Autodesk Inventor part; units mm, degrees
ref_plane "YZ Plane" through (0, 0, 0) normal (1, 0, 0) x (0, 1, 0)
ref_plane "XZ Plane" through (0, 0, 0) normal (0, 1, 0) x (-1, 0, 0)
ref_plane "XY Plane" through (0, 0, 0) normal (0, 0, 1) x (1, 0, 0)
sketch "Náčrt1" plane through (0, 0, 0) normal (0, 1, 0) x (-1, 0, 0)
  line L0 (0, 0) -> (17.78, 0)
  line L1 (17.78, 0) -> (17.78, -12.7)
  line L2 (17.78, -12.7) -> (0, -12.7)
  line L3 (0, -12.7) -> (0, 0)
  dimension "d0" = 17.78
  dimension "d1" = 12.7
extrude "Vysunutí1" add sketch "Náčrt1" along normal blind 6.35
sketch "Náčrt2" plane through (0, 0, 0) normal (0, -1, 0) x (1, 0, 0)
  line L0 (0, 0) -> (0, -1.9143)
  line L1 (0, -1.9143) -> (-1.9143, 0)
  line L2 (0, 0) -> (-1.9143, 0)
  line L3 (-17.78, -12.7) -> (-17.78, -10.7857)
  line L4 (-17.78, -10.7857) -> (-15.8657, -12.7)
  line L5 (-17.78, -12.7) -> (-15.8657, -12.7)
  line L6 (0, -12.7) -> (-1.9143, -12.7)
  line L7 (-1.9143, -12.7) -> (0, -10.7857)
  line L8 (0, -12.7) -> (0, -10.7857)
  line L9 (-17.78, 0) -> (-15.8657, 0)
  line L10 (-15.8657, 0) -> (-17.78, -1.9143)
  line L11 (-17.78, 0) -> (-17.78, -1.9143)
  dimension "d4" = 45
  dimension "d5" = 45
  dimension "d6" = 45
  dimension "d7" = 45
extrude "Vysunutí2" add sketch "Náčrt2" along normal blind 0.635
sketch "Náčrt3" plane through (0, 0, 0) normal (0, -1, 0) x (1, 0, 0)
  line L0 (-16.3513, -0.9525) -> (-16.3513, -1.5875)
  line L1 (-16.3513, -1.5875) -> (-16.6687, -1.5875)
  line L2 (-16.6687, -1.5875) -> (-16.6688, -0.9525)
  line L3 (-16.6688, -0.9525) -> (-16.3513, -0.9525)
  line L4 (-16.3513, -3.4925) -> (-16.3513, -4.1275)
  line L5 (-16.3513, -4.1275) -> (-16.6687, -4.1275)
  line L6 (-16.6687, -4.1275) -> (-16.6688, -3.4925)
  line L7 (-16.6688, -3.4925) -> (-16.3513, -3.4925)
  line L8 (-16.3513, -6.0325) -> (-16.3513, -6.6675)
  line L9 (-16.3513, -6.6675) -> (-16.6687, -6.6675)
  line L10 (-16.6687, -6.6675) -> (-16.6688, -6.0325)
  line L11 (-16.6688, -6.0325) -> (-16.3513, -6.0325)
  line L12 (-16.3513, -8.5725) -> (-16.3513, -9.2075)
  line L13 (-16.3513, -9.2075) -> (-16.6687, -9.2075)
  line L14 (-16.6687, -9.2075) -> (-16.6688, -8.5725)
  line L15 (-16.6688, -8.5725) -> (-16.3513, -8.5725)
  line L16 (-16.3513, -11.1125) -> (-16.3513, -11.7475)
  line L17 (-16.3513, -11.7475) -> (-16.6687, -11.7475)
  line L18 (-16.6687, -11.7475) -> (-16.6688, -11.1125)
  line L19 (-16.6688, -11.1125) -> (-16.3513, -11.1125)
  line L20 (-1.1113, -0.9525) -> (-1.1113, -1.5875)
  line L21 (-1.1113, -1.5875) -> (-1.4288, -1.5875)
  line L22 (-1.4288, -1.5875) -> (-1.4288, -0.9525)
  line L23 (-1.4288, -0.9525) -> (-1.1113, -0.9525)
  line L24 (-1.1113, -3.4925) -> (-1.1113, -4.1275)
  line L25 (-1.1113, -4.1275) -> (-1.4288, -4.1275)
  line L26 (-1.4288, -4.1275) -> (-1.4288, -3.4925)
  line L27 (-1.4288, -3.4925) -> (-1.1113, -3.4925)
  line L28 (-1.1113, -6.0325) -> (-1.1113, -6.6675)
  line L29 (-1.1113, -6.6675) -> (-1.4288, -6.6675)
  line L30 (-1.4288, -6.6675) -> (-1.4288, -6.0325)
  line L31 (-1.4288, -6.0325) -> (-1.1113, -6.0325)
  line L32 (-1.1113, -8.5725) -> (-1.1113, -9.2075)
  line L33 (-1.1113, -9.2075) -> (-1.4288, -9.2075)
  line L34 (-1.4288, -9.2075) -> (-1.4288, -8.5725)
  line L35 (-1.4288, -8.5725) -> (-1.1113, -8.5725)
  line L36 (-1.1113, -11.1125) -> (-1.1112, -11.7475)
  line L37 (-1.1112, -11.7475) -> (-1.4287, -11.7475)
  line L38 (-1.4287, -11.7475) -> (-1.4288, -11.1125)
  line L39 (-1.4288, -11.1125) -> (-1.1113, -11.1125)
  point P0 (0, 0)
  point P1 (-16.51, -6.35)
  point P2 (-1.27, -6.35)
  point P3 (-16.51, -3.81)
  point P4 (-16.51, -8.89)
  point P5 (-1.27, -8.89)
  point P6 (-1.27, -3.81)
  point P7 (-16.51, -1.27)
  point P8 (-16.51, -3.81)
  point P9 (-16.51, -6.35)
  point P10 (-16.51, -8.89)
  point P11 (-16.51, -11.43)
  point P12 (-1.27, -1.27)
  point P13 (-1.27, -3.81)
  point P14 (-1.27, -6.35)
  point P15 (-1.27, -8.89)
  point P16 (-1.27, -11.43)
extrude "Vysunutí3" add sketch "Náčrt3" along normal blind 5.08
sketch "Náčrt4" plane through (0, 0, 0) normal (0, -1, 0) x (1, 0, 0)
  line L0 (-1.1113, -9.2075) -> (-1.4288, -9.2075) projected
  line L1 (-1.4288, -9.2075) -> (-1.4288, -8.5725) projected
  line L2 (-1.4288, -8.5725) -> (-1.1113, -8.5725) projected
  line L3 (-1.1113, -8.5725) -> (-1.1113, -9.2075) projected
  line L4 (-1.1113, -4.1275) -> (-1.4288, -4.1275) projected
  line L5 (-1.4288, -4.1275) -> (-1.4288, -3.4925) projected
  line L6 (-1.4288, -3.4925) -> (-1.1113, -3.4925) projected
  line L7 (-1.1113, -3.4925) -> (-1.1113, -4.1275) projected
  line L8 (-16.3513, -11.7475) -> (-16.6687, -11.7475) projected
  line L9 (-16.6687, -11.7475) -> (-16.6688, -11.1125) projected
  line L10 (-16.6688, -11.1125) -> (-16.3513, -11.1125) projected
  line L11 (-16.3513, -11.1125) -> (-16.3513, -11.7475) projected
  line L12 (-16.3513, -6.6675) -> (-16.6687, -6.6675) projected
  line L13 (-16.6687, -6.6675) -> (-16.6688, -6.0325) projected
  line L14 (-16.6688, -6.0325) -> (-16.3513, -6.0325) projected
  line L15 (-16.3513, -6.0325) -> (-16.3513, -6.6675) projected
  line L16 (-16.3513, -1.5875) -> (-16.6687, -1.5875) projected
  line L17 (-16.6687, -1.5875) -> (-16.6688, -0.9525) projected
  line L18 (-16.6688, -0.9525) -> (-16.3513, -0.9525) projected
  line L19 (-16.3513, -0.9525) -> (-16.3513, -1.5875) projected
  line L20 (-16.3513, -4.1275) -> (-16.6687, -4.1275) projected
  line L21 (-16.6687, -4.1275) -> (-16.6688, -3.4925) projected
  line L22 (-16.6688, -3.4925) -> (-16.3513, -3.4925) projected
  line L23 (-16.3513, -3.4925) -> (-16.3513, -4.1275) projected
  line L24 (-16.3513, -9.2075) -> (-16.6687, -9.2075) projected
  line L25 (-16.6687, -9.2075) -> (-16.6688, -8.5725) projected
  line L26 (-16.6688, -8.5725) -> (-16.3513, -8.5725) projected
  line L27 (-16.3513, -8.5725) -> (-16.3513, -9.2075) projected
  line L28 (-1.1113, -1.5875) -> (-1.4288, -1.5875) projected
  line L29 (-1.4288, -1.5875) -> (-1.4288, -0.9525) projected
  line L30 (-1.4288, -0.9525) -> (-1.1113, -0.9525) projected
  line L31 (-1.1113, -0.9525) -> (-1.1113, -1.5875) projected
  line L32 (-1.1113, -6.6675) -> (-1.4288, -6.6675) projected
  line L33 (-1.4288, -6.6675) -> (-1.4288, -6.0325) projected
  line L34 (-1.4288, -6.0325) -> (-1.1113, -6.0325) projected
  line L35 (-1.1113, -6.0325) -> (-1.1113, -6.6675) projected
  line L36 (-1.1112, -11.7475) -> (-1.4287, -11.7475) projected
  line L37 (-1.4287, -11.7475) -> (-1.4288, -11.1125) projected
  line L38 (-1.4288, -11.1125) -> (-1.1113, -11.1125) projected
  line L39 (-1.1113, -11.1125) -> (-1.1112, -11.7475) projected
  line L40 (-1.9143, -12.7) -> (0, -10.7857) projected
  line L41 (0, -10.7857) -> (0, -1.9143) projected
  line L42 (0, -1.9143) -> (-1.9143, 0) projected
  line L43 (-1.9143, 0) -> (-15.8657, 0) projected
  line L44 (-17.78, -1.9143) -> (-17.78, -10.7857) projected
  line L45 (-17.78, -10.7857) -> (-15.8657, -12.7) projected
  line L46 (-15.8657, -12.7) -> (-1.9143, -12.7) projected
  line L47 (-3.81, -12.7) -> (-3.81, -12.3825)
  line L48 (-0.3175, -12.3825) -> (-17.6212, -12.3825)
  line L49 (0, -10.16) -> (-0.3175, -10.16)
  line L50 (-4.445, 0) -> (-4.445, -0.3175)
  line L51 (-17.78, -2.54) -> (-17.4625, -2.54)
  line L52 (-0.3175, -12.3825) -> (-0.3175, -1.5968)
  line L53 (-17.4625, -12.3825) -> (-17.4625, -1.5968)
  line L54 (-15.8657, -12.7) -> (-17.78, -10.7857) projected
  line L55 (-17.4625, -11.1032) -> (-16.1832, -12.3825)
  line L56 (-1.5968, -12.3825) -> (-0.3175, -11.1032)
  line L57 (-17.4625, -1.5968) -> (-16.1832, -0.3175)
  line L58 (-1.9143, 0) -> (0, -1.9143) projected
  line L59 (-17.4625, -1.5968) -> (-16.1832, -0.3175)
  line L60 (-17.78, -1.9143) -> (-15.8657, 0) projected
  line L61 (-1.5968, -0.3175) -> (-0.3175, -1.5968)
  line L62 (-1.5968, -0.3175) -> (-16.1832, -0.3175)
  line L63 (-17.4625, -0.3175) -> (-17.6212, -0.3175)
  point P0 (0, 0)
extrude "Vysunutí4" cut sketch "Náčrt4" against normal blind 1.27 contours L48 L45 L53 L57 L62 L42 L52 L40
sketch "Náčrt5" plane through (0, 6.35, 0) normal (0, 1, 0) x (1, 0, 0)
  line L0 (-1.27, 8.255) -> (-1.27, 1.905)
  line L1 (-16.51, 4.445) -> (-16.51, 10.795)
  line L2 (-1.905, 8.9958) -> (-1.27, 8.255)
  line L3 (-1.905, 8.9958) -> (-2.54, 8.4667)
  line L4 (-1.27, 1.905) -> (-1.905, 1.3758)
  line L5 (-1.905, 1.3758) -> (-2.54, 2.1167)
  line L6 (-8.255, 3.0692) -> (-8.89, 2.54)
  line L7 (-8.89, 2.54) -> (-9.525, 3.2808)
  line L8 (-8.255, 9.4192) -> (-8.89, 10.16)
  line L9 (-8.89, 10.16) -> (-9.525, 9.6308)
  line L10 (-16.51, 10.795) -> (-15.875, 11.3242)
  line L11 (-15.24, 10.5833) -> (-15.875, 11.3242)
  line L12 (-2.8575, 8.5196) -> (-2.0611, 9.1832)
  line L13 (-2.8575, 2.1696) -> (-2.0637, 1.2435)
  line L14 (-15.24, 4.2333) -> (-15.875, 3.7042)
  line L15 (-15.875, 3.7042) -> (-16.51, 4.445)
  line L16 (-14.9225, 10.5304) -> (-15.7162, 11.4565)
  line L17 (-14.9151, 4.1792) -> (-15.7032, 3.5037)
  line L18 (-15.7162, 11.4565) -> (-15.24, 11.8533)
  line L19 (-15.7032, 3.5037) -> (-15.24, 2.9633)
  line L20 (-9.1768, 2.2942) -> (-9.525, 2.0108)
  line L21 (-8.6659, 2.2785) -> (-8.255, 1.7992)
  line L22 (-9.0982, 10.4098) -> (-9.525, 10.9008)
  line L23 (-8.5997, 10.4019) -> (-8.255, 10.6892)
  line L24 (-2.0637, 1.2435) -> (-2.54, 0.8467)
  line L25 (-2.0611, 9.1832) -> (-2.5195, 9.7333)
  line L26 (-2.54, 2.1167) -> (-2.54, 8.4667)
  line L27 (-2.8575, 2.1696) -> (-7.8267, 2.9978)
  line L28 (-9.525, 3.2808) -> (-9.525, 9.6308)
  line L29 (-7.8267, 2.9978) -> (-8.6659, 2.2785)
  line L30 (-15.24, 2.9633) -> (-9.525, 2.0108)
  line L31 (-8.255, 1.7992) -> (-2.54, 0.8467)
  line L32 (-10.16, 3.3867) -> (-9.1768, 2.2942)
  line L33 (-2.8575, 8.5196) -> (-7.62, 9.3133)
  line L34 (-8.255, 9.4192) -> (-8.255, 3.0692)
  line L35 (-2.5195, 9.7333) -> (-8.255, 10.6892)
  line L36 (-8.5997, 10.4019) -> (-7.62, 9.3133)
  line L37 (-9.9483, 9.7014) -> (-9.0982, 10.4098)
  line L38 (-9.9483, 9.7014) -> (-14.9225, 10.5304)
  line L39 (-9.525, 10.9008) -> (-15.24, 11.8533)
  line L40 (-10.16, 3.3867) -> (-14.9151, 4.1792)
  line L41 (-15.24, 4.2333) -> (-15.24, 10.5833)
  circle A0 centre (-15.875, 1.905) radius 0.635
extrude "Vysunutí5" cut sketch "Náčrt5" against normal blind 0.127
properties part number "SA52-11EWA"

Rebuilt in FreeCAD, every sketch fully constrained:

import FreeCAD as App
import Part
import Sketcher
from FreeCAD import Vector
Q = App.Units.Quantity

doc = App.newDocument("Part")
params = doc.addObject("Spreadsheet::Sheet", "Params")
for row, (alias, value) in enumerate([
    ("sketch1_width", "0.7 in"),
    ("sketch1_height", "0.5 in"),
    ("pad1_length", "0.25 in"),
    ("pad2_length", "0.025 in"),
    ("sketch3_height", "0.025 in"),
    ("pad3_length", "0.2 in"),
    ("sketch4_height", "0.025 in"),
    ("pocket1_length", "0.05 in"),
    ("sketch5_diameter", "0.05 in"),
    ("sketch5_height", "0.25 in"),
    ("pocket2_length", "0.005 in"),
], start=1):
    params.set(f"A{row}", alias)
    params.set(f"B{row}", "=" + value)
    params.setAlias(f"B{row}", alias)

body = doc.addObject("PartDesign::Body", "Body")

sketch1 = body.newObject("Sketcher::SketchObject", "Sketch")
sketch1.AttachmentSupport = (doc.getObject("XZ_Plane"), [""])
sketch1.MapMode = "FlatFace"
sketch1.addGeometry([
    Part.LineSegment(Vector(-18, 0, 0), Vector(0, 0, 0)),
    Part.LineSegment(Vector(0, 0, 0), Vector(0, -13, 0)),
    Part.LineSegment(Vector(0, -13, 0), Vector(-18, -13, 0)),
    Part.LineSegment(Vector(-18, -13, 0), Vector(-18, 0, 0)),
], False)
sketch1.addConstraint([
    Sketcher.Constraint("Coincident", 0, 2, 1, 1),
    Sketcher.Constraint("Coincident", 1, 2, 2, 1),
    Sketcher.Constraint("Coincident", 2, 2, 3, 1),
    Sketcher.Constraint("Coincident", 3, 2, 0, 1),
    Sketcher.Constraint("Horizontal", 0),
    Sketcher.Constraint("Vertical", 1),
    Sketcher.Constraint("Horizontal", 2),
    Sketcher.Constraint("Vertical", 3),
    Sketcher.Constraint("Coincident", 0, 2, -1, 1),
    Sketcher.Constraint("DistanceX", 0, 1, 0, 2, Q("0.7 in")),
    Sketcher.Constraint("DistanceY", 1, 2, 1, 1, Q("0.5 in")),
])
sketch1.setExpression("Constraints[9]", "Params.sketch1_width")
sketch1.setExpression("Constraints[10]", "Params.sketch1_height")
pad1 = body.newObject("PartDesign::Pad", "Pad")
pad1.Profile = sketch1
pad1.setExpression("Length", "Params.pad1_length")
pad1.Reversed = True

sketch2 = body.newObject("Sketcher::SketchObject", "Sketch001")
sketch2.AttachmentSupport = (doc.getObject("XZ_Plane"), [""])
sketch2.MapMode = "FlatFace"
sketch2.addGeometry([
    Part.LineSegment(Vector(0, -1.9, 0), Vector(0, 0, 0)),
    Part.LineSegment(Vector(0, 0, 0), Vector(-1.9, 0, 0)),
    Part.LineSegment(Vector(-1.9, 0, 0), Vector(0, -1.9, 0)),
    Part.LineSegment(Vector(-17.8, -10.8, 0), Vector(-17.8, -12.7, 0)),
    Part.LineSegment(Vector(-17.8, -12.7, 0), Vector(-15.9, -12.7, 0)),
    Part.LineSegment(Vector(-15.9, -12.7, 0), Vector(-17.8, -10.8, 0)),
    Part.LineSegment(Vector(-1.9, -12.7, 0), Vector(0, -12.7, 0)),
    Part.LineSegment(Vector(0, -12.7, 0), Vector(0, -10.8, 0)),
    Part.LineSegment(Vector(0, -10.8, 0), Vector(-1.9, -12.7, 0)),
    Part.LineSegment(Vector(-15.9, 0, 0), Vector(-17.8, 0, 0)),
    Part.LineSegment(Vector(-17.8, 0, 0), Vector(-17.8, -1.9, 0)),
    Part.LineSegment(Vector(-17.8, -1.9, 0), Vector(-15.9, 0, 0)),
], False)
sketch2.addConstraint([
    Sketcher.Constraint("Coincident", 0, 2, 1, 1),
    Sketcher.Constraint("Coincident", 1, 2, 2, 1),
    Sketcher.Constraint("Coincident", 2, 2, 0, 1),
    Sketcher.Constraint("Coincident", 3, 2, 4, 1),
    Sketcher.Constraint("Coincident", 4, 2, 5, 1),
    Sketcher.Constraint("Coincident", 5, 2, 3, 1),
    Sketcher.Constraint("Coincident", 6, 2, 7, 1),
    Sketcher.Constraint("Coincident", 7, 2, 8, 1),
    Sketcher.Constraint("Coincident", 8, 2, 6, 1),
    Sketcher.Constraint("Coincident", 9, 2, 10, 1),
    Sketcher.Constraint("Coincident", 10, 2, 11, 1),
    Sketcher.Constraint("Coincident", 11, 2, 9, 1),
    Sketcher.Constraint("Vertical", 0),
    Sketcher.Constraint("Horizontal", 1),
    Sketcher.Constraint("Vertical", 3),
    Sketcher.Constraint("Horizontal", 4),
    Sketcher.Constraint("Horizontal", 6),
    Sketcher.Constraint("Vertical", 7),
    Sketcher.Constraint("Horizontal", 9),
    Sketcher.Constraint("Vertical", 10),
    Sketcher.Constraint("Coincident", 0, 2, -1, 1),
    Sketcher.Constraint("PointOnObject", 6, 2, -2),
    Sketcher.Constraint("PointOnObject", 9, 2, -1),
    Sketcher.Constraint("Parallel", 2, 5),
    Sketcher.Constraint("Perpendicular", 5, 8),
    Sketcher.Constraint("Parallel", 8, 11),
    Sketcher.Constraint("Horizontal", 4, 2, 6, 2),
    Sketcher.Constraint("Horizontal", 5, 2, 7, 2),
    Sketcher.Constraint("Horizontal", 2, 2, 10, 2),
    Sketcher.Constraint("Vertical", 1, 2, 8, 2),
    Sketcher.Constraint("Vertical", 5, 2, 9, 2),
    Sketcher.Constraint("Vertical", 4, 2, 11, 2),
    Sketcher.Constraint("DistanceX", 3, 2, -1, 1, Q("0.7 in")),
    Sketcher.Constraint("DistanceY", 3, 2, -1, 1, Q("0.5 in")),
    Sketcher.Constraint("DistanceX", 1, 2, 1, 1, 1.9143),
])
pad2 = body.newObject("PartDesign::Pad", "Pad001")
pad2.Profile = sketch2
pad2.setExpression("Length", "Params.pad2_length")

sketch3 = body.newObject("Sketcher::SketchObject", "Sketch002")
sketch3.AttachmentSupport = (doc.getObject("XZ_Plane"), [""])
sketch3.MapMode = "FlatFace"
sketch3.addGeometry([
    Part.LineSegment(Vector(-16.35, -1.59, 0), Vector(-16.35, -0.95, 0)),
    Part.LineSegment(Vector(-16.35, -0.95, 0), Vector(-16.67, -0.95, 0)),
    Part.LineSegment(Vector(-16.67, -0.95, 0), Vector(-16.67, -1.59, 0)),
    Part.LineSegment(Vector(-16.67, -1.59, 0), Vector(-16.35, -1.59, 0)),
    Part.LineSegment(Vector(-16.35, -4.13, 0), Vector(-16.35, -3.49, 0)),
    Part.LineSegment(Vector(-16.35, -3.49, 0), Vector(-16.67, -3.49, 0)),
    Part.LineSegment(Vector(-16.67, -3.49, 0), Vector(-16.67, -4.13, 0)),
    Part.LineSegment(Vector(-16.67, -4.13, 0), Vector(-16.35, -4.13, 0)),
    Part.LineSegment(Vector(-16.35, -6.67, 0), Vector(-16.35, -6.03, 0)),
    Part.LineSegment(Vector(-16.35, -6.03, 0), Vector(-16.67, -6.03, 0)),
    Part.LineSegment(Vector(-16.67, -6.03, 0), Vector(-16.67, -6.67, 0)),
    Part.LineSegment(Vector(-16.67, -6.67, 0), Vector(-16.35, -6.67, 0)),
    Part.LineSegment(Vector(-16.35, -9.21, 0), Vector(-16.35, -8.57, 0)),
    Part.LineSegment(Vector(-16.35, -8.57, 0), Vector(-16.67, -8.57, 0)),
    Part.LineSegment(Vector(-16.67, -8.57, 0), Vector(-16.67, -9.21, 0)),
    Part.LineSegment(Vector(-16.67, -9.21, 0), Vector(-16.35, -9.21, 0)),
    Part.LineSegment(Vector(-16.35, -11.75, 0), Vector(-16.35, -11.11, 0)),
    Part.LineSegment(Vector(-16.35, -11.11, 0), Vector(-16.67, -11.11, 0)),
    Part.LineSegment(Vector(-16.67, -11.11, 0), Vector(-16.67, -11.75, 0)),
    Part.LineSegment(Vector(-16.67, -11.75, 0), Vector(-16.35, -11.75, 0)),
    Part.LineSegment(Vector(-1.11, -1.59, 0), Vector(-1.11, -0.95, 0)),
    Part.LineSegment(Vector(-1.11, -0.95, 0), Vector(-1.43, -0.95, 0)),
    Part.LineSegment(Vector(-1.43, -0.95, 0), Vector(-1.43, -1.59, 0)),
    Part.LineSegment(Vector(-1.43, -1.59, 0), Vector(-1.11, -1.59, 0)),
    Part.LineSegment(Vector(-1.11, -4.13, 0), Vector(-1.11, -3.49, 0)),
    Part.LineSegment(Vector(-1.11, -3.49, 0), Vector(-1.43, -3.49, 0)),
    Part.LineSegment(Vector(-1.43, -3.49, 0), Vector(-1.43, -4.13, 0)),
    Part.LineSegment(Vector(-1.43, -4.13, 0), Vector(-1.11, -4.13, 0)),
    Part.LineSegment(Vector(-1.11, -6.67, 0), Vector(-1.11, -6.03, 0)),
    Part.LineSegment(Vector(-1.11, -6.03, 0), Vector(-1.43, -6.03, 0)),
    Part.LineSegment(Vector(-1.43, -6.03, 0), Vector(-1.43, -6.67, 0)),
    Part.LineSegment(Vector(-1.43, -6.67, 0), Vector(-1.11, -6.67, 0)),
    Part.LineSegment(Vector(-1.11, -9.21, 0), Vector(-1.11, -8.57, 0)),
    Part.LineSegment(Vector(-1.11, -8.57, 0), Vector(-1.43, -8.57, 0)),
    Part.LineSegment(Vector(-1.43, -8.57, 0), Vector(-1.43, -9.21, 0)),
    Part.LineSegment(Vector(-1.43, -9.21, 0), Vector(-1.11, -9.21, 0)),
    Part.LineSegment(Vector(-1.11, -11.75, 0), Vector(-1.11, -11.11, 0)),
    Part.LineSegment(Vector(-1.11, -11.11, 0), Vector(-1.43, -11.11, 0)),
    Part.LineSegment(Vector(-1.43, -11.11, 0), Vector(-1.43, -11.75, 0)),
    Part.LineSegment(Vector(-1.43, -11.75, 0), Vector(-1.11, -11.75, 0)),
], False)
sketch3.addConstraint([
    Sketcher.Constraint("Coincident", 0, 2, 1, 1),
    Sketcher.Constraint("Coincident", 1, 2, 2, 1),
    Sketcher.Constraint("Coincident", 2, 2, 3, 1),
    Sketcher.Constraint("Coincident", 3, 2, 0, 1),
    Sketcher.Constraint("Coincident", 4, 2, 5, 1),
    Sketcher.Constraint("Coincident", 5, 2, 6, 1),
    Sketcher.Constraint("Coincident", 6, 2, 7, 1),
    Sketcher.Constraint("Coincident", 7, 2, 4, 1),
    Sketcher.Constraint("Coincident", 8, 2, 9, 1),
    Sketcher.Constraint("Coincident", 9, 2, 10, 1),
    Sketcher.Constraint("Coincident", 10, 2, 11, 1),
    Sketcher.Constraint("Coincident", 11, 2, 8, 1),
    Sketcher.Constraint("Coincident", 12, 2, 13, 1),
    Sketcher.Constraint("Coincident", 13, 2, 14, 1),
    Sketcher.Constraint("Coincident", 14, 2, 15, 1),
    Sketcher.Constraint("Coincident", 15, 2, 12, 1),
    Sketcher.Constraint("Coincident", 16, 2, 17, 1),
    Sketcher.Constraint("Coincident", 17, 2, 18, 1),
    Sketcher.Constraint("Coincident", 18, 2, 19, 1),
    Sketcher.Constraint("Coincident", 19, 2, 16, 1),
    Sketcher.Constraint("Coincident", 20, 2, 21, 1),
    Sketcher.Constraint("Coincident", 21, 2, 22, 1),
    Sketcher.Constraint("Coincident", 22, 2, 23, 1),
    Sketcher.Constraint("Coincident", 23, 2, 20, 1),
    Sketcher.Constraint("Coincident", 24, 2, 25, 1),
    Sketcher.Constraint("Coincident", 25, 2, 26, 1),
    Sketcher.Constraint("Coincident", 26, 2, 27, 1),
    Sketcher.Constraint("Coincident", 27, 2, 24, 1),
    Sketcher.Constraint("Coincident", 28, 2, 29, 1),
    Sketcher.Constraint("Coincident", 29, 2, 30, 1),
    Sketcher.Constraint("Coincident", 30, 2, 31, 1),
    Sketcher.Constraint("Coincident", 31, 2, 28, 1),
    Sketcher.Constraint("Coincident", 32, 2, 33, 1),
    Sketcher.Constraint("Coincident", 33, 2, 34, 1),
    Sketcher.Constraint("Coincident", 34, 2, 35, 1),
    Sketcher.Constraint("Coincident", 35, 2, 32, 1),
    Sketcher.Constraint("Coincident", 36, 2, 37, 1),
    Sketcher.Constraint("Coincident", 37, 2, 38, 1),
    Sketcher.Constraint("Coincident", 38, 2, 39, 1),
    Sketcher.Constraint("Coincident", 39, 2, 36, 1),
    Sketcher.Constraint("Vertical", 0),
    Sketcher.Constraint("Horizontal", 1),
    Sketcher.Constraint("Vertical", 2),
    Sketcher.Constraint("Horizontal", 3),
    Sketcher.Constraint("Vertical", 4),
    Sketcher.Constraint("Horizontal", 5),
    Sketcher.Constraint("Vertical", 6),
    Sketcher.Constraint("Horizontal", 7),
    Sketcher.Constraint("Vertical", 8),
    Sketcher.Constraint("Horizontal", 9),
    Sketcher.Constraint("Vertical", 10),
    Sketcher.Constraint("Horizontal", 11),
    Sketcher.Constraint("Vertical", 12),
    Sketcher.Constraint("Horizontal", 13),
    Sketcher.Constraint("Vertical", 14),
    Sketcher.Constraint("Horizontal", 15),
    Sketcher.Constraint("Vertical", 16),
    Sketcher.Constraint("Horizontal", 17),
    Sketcher.Constraint("Vertical", 18),
    Sketcher.Constraint("Horizontal", 19),
    Sketcher.Constraint("Vertical", 20),
    Sketcher.Constraint("Horizontal", 21),
    Sketcher.Constraint("Vertical", 22),
    Sketcher.Constraint("Horizontal", 23),
    Sketcher.Constraint("Vertical", 24),
    Sketcher.Constraint("Horizontal", 25),
    Sketcher.Constraint("Vertical", 26),
    Sketcher.Constraint("Horizontal", 27),
    Sketcher.Constraint("Vertical", 28),
    Sketcher.Constraint("Horizontal", 29),
    Sketcher.Constraint("Vertical", 30),
    Sketcher.Constraint("Horizontal", 31),
    Sketcher.Constraint("Vertical", 32),
    Sketcher.Constraint("Horizontal", 33),
    Sketcher.Constraint("Vertical", 34),
    Sketcher.Constraint("Horizontal", 35),
    Sketcher.Constraint("Vertical", 36),
    Sketcher.Constraint("Horizontal", 37),
    Sketcher.Constraint("Vertical", 38),
    Sketcher.Constraint("Horizontal", 39),
    Sketcher.Constraint("Horizontal", 1, 2, 20, 2),
    Sketcher.Constraint("Horizontal", 3, 2, 22, 2),
    Sketcher.Constraint("Horizontal", 5, 2, 24, 2),
    Sketcher.Constraint("Horizontal", 7, 2, 26, 2),
    Sketcher.Constraint("Horizontal", 9, 2, 28, 2),
    Sketcher.Constraint("Horizontal", 11, 2, 30, 2),
    Sketcher.Constraint("Horizontal", 13, 2, 32, 2),
    Sketcher.Constraint("Horizontal", 15, 2, 34, 2),
    Sketcher.Constraint("Horizontal", 17, 2, 36, 2),
    Sketcher.Constraint("Horizontal", 19, 2, 38, 2),
    Sketcher.Constraint("Vertical", 3, 2, 4, 2),
    Sketcher.Constraint("Vertical", 2, 2, 5, 2),
    Sketcher.Constraint("Vertical", 7, 2, 8, 2),
    Sketcher.Constraint("Vertical", 6, 2, 9, 2),
    Sketcher.Constraint("Vertical", 11, 2, 12, 2),
    Sketcher.Constraint("Vertical", 10, 2, 13, 2),
    Sketcher.Constraint("Vertical", 15, 2, 16, 2),
    Sketcher.Constraint("Vertical", 14, 2, 17, 2),
    Sketcher.Constraint("Vertical", 23, 2, 24, 2),
    Sketcher.Constraint("Vertical", 22, 2, 25, 2),
    Sketcher.Constraint("Vertical", 27, 2, 28, 2),
    Sketcher.Constraint("Vertical", 26, 2, 29, 2),
    Sketcher.Constraint("Vertical", 31, 2, 32, 2),
    Sketcher.Constraint("Vertical", 30, 2, 33, 2),
    Sketcher.Constraint("Vertical", 35, 2, 36, 2),
    Sketcher.Constraint("Vertical", 34, 2, 37, 2),
    Sketcher.Constraint("Equal", 19, 21),
    Sketcher.Constraint("Equal", 2, 4),
    Sketcher.Constraint("Equal", 6, 8),
    Sketcher.Constraint("Equal", 10, 12),
    Sketcher.Constraint("Equal", 14, 16),
    Sketcher.Constraint("DistanceY", 4, 2, 0, 2, Q("0.1 in")),
    Sketcher.Constraint("DistanceY", 8, 2, 4, 2, Q("0.1 in")),
    Sketcher.Constraint("DistanceY", 12, 2, 8, 2, Q("0.1 in")),
    Sketcher.Constraint("DistanceY", 16, 2, 12, 2, Q("0.1 in")),
    Sketcher.Constraint("DistanceX", 0, 2, 20, 2, Q("0.6 in")),
    Sketcher.Constraint("DistanceY", 0, 1, 0, 2, Q("0.025 in")),
    Sketcher.Constraint("DistanceX", 1, 2, 1, 1, Q("0.0125 in")),
    Sketcher.Constraint("DistanceX", 1, 2, -1, 1, Q("0.656252 in")),
    Sketcher.Constraint("DistanceY", 2, 2, -1, 1, Q("0.0625 in")),
])
sketch3.setExpression("Constraints[116]", "Params.sketch3_height")
pad3 = body.newObject("PartDesign::Pad", "Pad002")
pad3.Profile = sketch3
pad3.setExpression("Length", "Params.pad3_length")

sketch4 = body.newObject("Sketcher::SketchObject", "Sketch003")
sketch4.AttachmentSupport = (doc.getObject("XZ_Plane"), [""])
sketch4.MapMode = "FlatFace"
sketch4.addGeometry([
    Part.LineSegment(Vector(-16.18, -12.38, 0), Vector(-1.6, -12.38, 0)),
    Part.LineSegment(Vector(-1.6, -12.38, 0), Vector(-0.32, -11.1, 0)),
    Part.LineSegment(Vector(-0.32, -11.1, 0), Vector(-0.32, -1.6, 0)),
    Part.LineSegment(Vector(-0.32, -1.6, 0), Vector(-1.6, -0.32, 0)),
    Part.LineSegment(Vector(-1.6, -0.32, 0), Vector(-16.18, -0.32, 0)),
    Part.LineSegment(Vector(-16.18, -0.32, 0), Vector(-17.46, -1.6, 0)),
    Part.LineSegment(Vector(-17.46, -1.6, 0), Vector(-17.46, -11.1, 0)),
    Part.LineSegment(Vector(-17.46, -11.1, 0), Vector(-16.18, -12.38, 0)),
    Part.LineSegment(Vector(-16.35, -11.11, 0), Vector(-16.35, -11.75, 0)),
    Part.LineSegment(Vector(-16.35, -11.75, 0), Vector(-16.67, -11.75, 0)),
    Part.LineSegment(Vector(-16.67, -11.75, 0), Vector(-16.67, -11.11, 0)),
    Part.LineSegment(Vector(-16.67, -11.11, 0), Vector(-16.35, -11.11, 0)),
    Part.LineSegment(Vector(-16.35, -8.57, 0), Vector(-16.35, -9.21, 0)),
    Part.LineSegment(Vector(-16.35, -9.21, 0), Vector(-16.67, -9.21, 0)),
    Part.LineSegment(Vector(-16.67, -9.21, 0), Vector(-16.67, -8.57, 0)),
    Part.LineSegment(Vector(-16.67, -8.57, 0), Vector(-16.35, -8.57, 0)),
    Part.LineSegment(Vector(-16.35, -6.03, 0), Vector(-16.35, -6.67, 0)),
    Part.LineSegment(Vector(-16.35, -6.67, 0), Vector(-16.67, -6.67, 0)),
    Part.LineSegment(Vector(-16.67, -6.67, 0), Vector(-16.67, -6.03, 0)),
    Part.LineSegment(Vector(-16.67, -6.03, 0), Vector(-16.35, -6.03, 0)),
    Part.LineSegment(Vector(-1.11, -11.11, 0), Vector(-1.11, -11.75, 0)),
    Part.LineSegment(Vector(-1.11, -11.75, 0), Vector(-1.43, -11.75, 0)),
    Part.LineSegment(Vector(-1.43, -11.75, 0), Vector(-1.43, -11.11, 0)),
    Part.LineSegment(Vector(-1.43, -11.11, 0), Vector(-1.11, -11.11, 0)),
    Part.LineSegment(Vector(-1.11, -8.57, 0), Vector(-1.11, -9.21, 0)),
    Part.LineSegment(Vector(-1.11, -9.21, 0), Vector(-1.43, -9.21, 0)),
    Part.LineSegment(Vector(-1.43, -9.21, 0), Vector(-1.43, -8.57, 0)),
    Part.LineSegment(Vector(-1.43, -8.57, 0), Vector(-1.11, -8.57, 0)),
    Part.LineSegment(Vector(-1.11, -6.03, 0), Vector(-1.11, -6.67, 0)),
    Part.LineSegment(Vector(-1.11, -6.67, 0), Vector(-1.43, -6.67, 0)),
    Part.LineSegment(Vector(-1.43, -6.67, 0), Vector(-1.43, -6.03, 0)),
    Part.LineSegment(Vector(-1.43, -6.03, 0), Vector(-1.11, -6.03, 0)),
    Part.LineSegment(Vector(-16.35, -3.49, 0), Vector(-16.35, -4.13, 0)),
    Part.LineSegment(Vector(-16.35, -4.13, 0), Vector(-16.67, -4.13, 0)),
    Part.LineSegment(Vector(-16.67, -4.13, 0), Vector(-16.67, -3.49, 0)),
    Part.LineSegment(Vector(-16.67, -3.49, 0), Vector(-16.35, -3.49, 0)),
    Part.LineSegment(Vector(-16.35, -0.95, 0), Vector(-16.35, -1.59, 0)),
    Part.LineSegment(Vector(-16.35, -1.59, 0), Vector(-16.67, -1.59, 0)),
    Part.LineSegment(Vector(-16.67, -1.59, 0), Vector(-16.67, -0.95, 0)),
    Part.LineSegment(Vector(-16.67, -0.95, 0), Vector(-16.35, -0.95, 0)),
    Part.LineSegment(Vector(-1.11, -3.49, 0), Vector(-1.11, -4.13, 0)),
    Part.LineSegment(Vector(-1.11, -4.13, 0), Vector(-1.43, -4.13, 0)),
    Part.LineSegment(Vector(-1.43, -4.13, 0), Vector(-1.43, -3.49, 0)),
    Part.LineSegment(Vector(-1.43, -3.49, 0), Vector(-1.11, -3.49, 0)),
    Part.LineSegment(Vector(-1.11, -0.95, 0), Vector(-1.11, -1.59, 0)),
    Part.LineSegment(Vector(-1.11, -1.59, 0), Vector(-1.43, -1.59, 0)),
    Part.LineSegment(Vector(-1.43, -1.59, 0), Vector(-1.43, -0.95, 0)),
    Part.LineSegment(Vector(-1.43, -0.95, 0), Vector(-1.11, -0.95, 0)),
], False)
sketch4.addConstraint([
    Sketcher.Constraint("Coincident", 0, 2, 1, 1),
    Sketcher.Constraint("Coincident", 1, 2, 2, 1),
    Sketcher.Constraint("Coincident", 2, 2, 3, 1),
    Sketcher.Constraint("Coincident", 3, 2, 4, 1),
    Sketcher.Constraint("Coincident", 4, 2, 5, 1),
    Sketcher.Constraint("Coincident", 5, 2, 6, 1),
    Sketcher.Constraint("Coincident", 6, 2, 7, 1),
    Sketcher.Constraint("Coincident", 7, 2, 0, 1),
    Sketcher.Constraint("Coincident", 8, 2, 9, 1),
    Sketcher.Constraint("Coincident", 9, 2, 10, 1),
    Sketcher.Constraint("Coincident", 10, 2, 11, 1),
    Sketcher.Constraint("Coincident", 11, 2, 8, 1),
    Sketcher.Constraint("Coincident", 12, 2, 13, 1),
    Sketcher.Constraint("Coincident", 13, 2, 14, 1),
    Sketcher.Constraint("Coincident", 14, 2, 15, 1),
    Sketcher.Constraint("Coincident", 15, 2, 12, 1),
    Sketcher.Constraint("Coincident", 16, 2, 17, 1),
    Sketcher.Constraint("Coincident", 17, 2, 18, 1),
    Sketcher.Constraint("Coincident", 18, 2, 19, 1),
    Sketcher.Constraint("Coincident", 19, 2, 16, 1),
    Sketcher.Constraint("Coincident", 20, 2, 21, 1),
    Sketcher.Constraint("Coincident", 21, 2, 22, 1),
    Sketcher.Constraint("Coincident", 22, 2, 23, 1),
    Sketcher.Constraint("Coincident", 23, 2, 20, 1),
    Sketcher.Constraint("Coincident", 24, 2, 25, 1),
    Sketcher.Constraint("Coincident", 25, 2, 26, 1),
    Sketcher.Constraint("Coincident", 26, 2, 27, 1),
    Sketcher.Constraint("Coincident", 27, 2, 24, 1),
    Sketcher.Constraint("Coincident", 28, 2, 29, 1),
    Sketcher.Constraint("Coincident", 29, 2, 30, 1),
    Sketcher.Constraint("Coincident", 30, 2, 31, 1),
    Sketcher.Constraint("Coincident", 31, 2, 28, 1),
    Sketcher.Constraint("Coincident", 32, 2, 33, 1),
    Sketcher.Constraint("Coincident", 33, 2, 34, 1),
    Sketcher.Constraint("Coincident", 34, 2, 35, 1),
    Sketcher.Constraint("Coincident", 35, 2, 32, 1),
    Sketcher.Constraint("Coincident", 36, 2, 37, 1),
    Sketcher.Constraint("Coincident", 37, 2, 38, 1),
    Sketcher.Constraint("Coincident", 38, 2, 39, 1),
    Sketcher.Constraint("Coincident", 39, 2, 36, 1),
    Sketcher.Constraint("Coincident", 40, 2, 41, 1),
    Sketcher.Constraint("Coincident", 41, 2, 42, 1),
    Sketcher.Constraint("Coincident", 42, 2, 43, 1),
    Sketcher.Constraint("Coincident", 43, 2, 40, 1),
    Sketcher.Constraint("Coincident", 44, 2, 45, 1),
    Sketcher.Constraint("Coincident", 45, 2, 46, 1),
    Sketcher.Constraint("Coincident", 46, 2, 47, 1),
    Sketcher.Constraint("Coincident", 47, 2, 44, 1),
    Sketcher.Constraint("Horizontal", 0),
    Sketcher.Constraint("Vertical", 2),
    Sketcher.Constraint("Horizontal", 4),
    Sketcher.Constraint("Vertical", 6),
    Sketcher.Constraint("Vertical", 8),
    Sketcher.Constraint("Horizontal", 9),
    Sketcher.Constraint("Vertical", 10),
    Sketcher.Constraint("Horizontal", 11),
    Sketcher.Constraint("Vertical", 12),
    Sketcher.Constraint("Horizontal", 13),
    Sketcher.Constraint("Vertical", 14),
    Sketcher.Constraint("Horizontal", 15),
    Sketcher.Constraint("Vertical", 16),
    Sketcher.Constraint("Horizontal", 17),
    Sketcher.Constraint("Vertical", 18),
    Sketcher.Constraint("Horizontal", 19),
    Sketcher.Constraint("Vertical", 20),
    Sketcher.Constraint("Horizontal", 21),
    Sketcher.Constraint("Vertical", 22),
    Sketcher.Constraint("Horizontal", 23),
    Sketcher.Constraint("Vertical", 24),
    Sketcher.Constraint("Horizontal", 25),
    Sketcher.Constraint("Vertical", 26),
    Sketcher.Constraint("Horizontal", 27),
    Sketcher.Constraint("Vertical", 28),
    Sketcher.Constraint("Horizontal", 29),
    Sketcher.Constraint("Vertical", 30),
    Sketcher.Constraint("Horizontal", 31),
    Sketcher.Constraint("Vertical", 32),
    Sketcher.Constraint("Horizontal", 33),
    Sketcher.Constraint("Vertical", 34),
    Sketcher.Constraint("Horizontal", 35),
    Sketcher.Constraint("Vertical", 36),
    Sketcher.Constraint("Horizontal", 37),
    Sketcher.Constraint("Vertical", 38),
    Sketcher.Constraint("Horizontal", 39),
    Sketcher.Constraint("Vertical", 40),
    Sketcher.Constraint("Horizontal", 41),
    Sketcher.Constraint("Vertical", 42),
    Sketcher.Constraint("Horizontal", 43),
    Sketcher.Constraint("Vertical", 44),
    Sketcher.Constraint("Horizontal", 45),
    Sketcher.Constraint("Vertical", 46),
    Sketcher.Constraint("Horizontal", 47),
    Sketcher.Constraint("Perpendicular", 1, 3),
    Sketcher.Constraint("Perpendicular", 3, 5),
    Sketcher.Constraint("Perpendicular", 5, 7),
    Sketcher.Constraint("Horizontal", 2, 2, 5, 2),
    Sketcher.Constraint("Horizontal", 1, 2, 6, 2),
    Sketcher.Constraint("Horizontal", 9, 2, 20, 2),
    Sketcher.Constraint("Horizontal", 11, 2, 22, 2),
    Sketcher.Constraint("Horizontal", 13, 2, 24, 2),
    Sketcher.Constraint("Horizontal", 15, 2, 26, 2),
    Sketcher.Constraint("Horizontal", 17, 2, 28, 2),
    Sketcher.Constraint("Horizontal", 19, 2, 30, 2),
    Sketcher.Constraint("Horizontal", 33, 2, 40, 2),
    Sketcher.Constraint("Horizontal", 35, 2, 42, 2),
    Sketcher.Constraint("Horizontal", 37, 2, 44, 2),
    Sketcher.Constraint("Horizontal", 39, 2, 46, 2),
    Sketcher.Constraint("Vertical", 0, 2, 3, 2),
    Sketcher.Constraint("Vertical", 4, 2, 7, 2),
    Sketcher.Constraint("Vertical", 11, 2, 12, 2),
    Sketcher.Constraint("Vertical", 10, 2, 13, 2),
    Sketcher.Constraint("Vertical", 15, 2, 16, 2),
    Sketcher.Constraint("Vertical", 14, 2, 17, 2),
    Sketcher.Constraint("Vertical", 23, 2, 24, 2),
    Sketcher.Constraint("Vertical", 22, 2, 25, 2),
    Sketcher.Constraint("Vertical", 27, 2, 28, 2),
    Sketcher.Constraint("Vertical", 26, 2, 29, 2),
    Sketcher.Constraint("Vertical", 19, 2, 32, 2),
    Sketcher.Constraint("Vertical", 18, 2, 33, 2),
    Sketcher.Constraint("Vertical", 35, 2, 36, 2),
    Sketcher.Constraint("Vertical", 34, 2, 37, 2),
    Sketcher.Constraint("Vertical", 31, 2, 40, 2),
    Sketcher.Constraint("Vertical", 30, 2, 41, 2),
    Sketcher.Constraint("Vertical", 43, 2, 44, 2),
    Sketcher.Constraint("Vertical", 42, 2, 45, 2),
    Sketcher.Constraint("Equal", 19, 21),
    Sketcher.Constraint("Equal", 10, 12),
    Sketcher.Constraint("Equal", 14, 16),
    Sketcher.Constraint("Equal", 30, 32),
    Sketcher.Constraint("Equal", 34, 36),
    Sketcher.Constraint("DistanceY", 8, 2, 12, 2, Q("0.1 in")),
    Sketcher.Constraint("DistanceY", 12, 2, 16, 2, Q("0.1 in")),
    Sketcher.Constraint("DistanceY", 16, 2, 32, 2, Q("0.1 in")),
    Sketcher.Constraint("DistanceY", 32, 2, 36, 2, Q("0.1 in")),
    Sketcher.Constraint("DistanceY", 8, 2, 8, 1, Q("0.025 in")),
    Sketcher.Constraint("DistanceY", 8, 2, 4, 2, Q("0.45 in")),
    Sketcher.Constraint("DistanceY", 7, 2, 10, 2, Q("0.05 in")),
    Sketcher.Constraint("DistanceX", 9, 2, 9, 1, Q("0.0125 in")),
    Sketcher.Constraint("DistanceX", 5, 2, -1, 1, Q("0.6875 in")),
    Sketcher.Constraint("DistanceX", 9, 2, -1, 1, Q("0.656248 in")),
    Sketcher.Constraint("DistanceY", 10, 2, -1, 1, Q("0.4375 in")),
    Sketcher.Constraint("DistanceX", 5, 2, 2, 2, Q("0.675 in")),
    Sketcher.Constraint("DistanceX", 20, 2, 1, 2, Q("0.031248 in")),
    Sketcher.Constraint("DistanceX", 0, 1, 0, 2, 14.5864),
])
sketch4.setExpression("Constraints[134]", "Params.sketch4_height")
pocket1 = body.newObject("PartDesign::Pocket", "Pocket")
pocket1.Profile = sketch4
pocket1.setExpression("Length", "Params.pocket1_length")

sketch5 = body.newObject("Sketcher::SketchObject", "Sketch004")
sketch5.AttachmentSupport = (doc.getObject("XZ_Plane"), [""])
sketch5.MapMode = "FlatFace"
sketch5.AttachmentOffset = App.Placement(Vector(0, 0, -0.25 * 25.4), App.Rotation())
sketch5.addGeometry([
    Part.LineSegment(Vector(-1.27, -1.91, 0), Vector(-1.27, -8.26, 0)),
    Part.LineSegment(Vector(-1.27, -8.26, 0), Vector(-1.91, -9, 0)),
    Part.LineSegment(Vector(-1.91, -9, 0), Vector(-2.54, -8.47, 0)),
    Part.LineSegment(Vector(-2.54, -8.47, 0), Vector(-2.54, -2.12, 0)),
    Part.LineSegment(Vector(-2.54, -2.12, 0), Vector(-1.91, -1.38, 0)),
    Part.LineSegment(Vector(-1.91, -1.38, 0), Vector(-1.27, -1.91, 0)),
    Part.LineSegment(Vector(-16.51, -10.79, 0), Vector(-16.51, -4.45, 0)),
    Part.LineSegment(Vector(-16.51, -4.45, 0), Vector(-15.88, -3.7, 0)),
    Part.LineSegment(Vector(-15.88, -3.7, 0), Vector(-15.24, -4.23, 0)),
    Part.LineSegment(Vector(-15.24, -4.23, 0), Vector(-15.24, -10.58, 0)),
    Part.LineSegment(Vector(-15.24, -10.58, 0), Vector(-15.88, -11.32, 0)),
    Part.LineSegment(Vector(-15.88, -11.32, 0), Vector(-16.51, -10.79, 0)),
    Part.LineSegment(Vector(-8.89, -2.54, 0), Vector(-8.26, -3.07, 0)),
    Part.LineSegment(Vector(-8.26, -3.07, 0), Vector(-8.26, -9.42, 0)),
    Part.LineSegment(Vector(-8.26, -9.42, 0), Vector(-8.89, -10.16, 0)),
    Part.LineSegment(Vector(-8.89, -10.16, 0), Vector(-9.53, -9.63, 0)),
    Part.LineSegment(Vector(-9.53, -9.63, 0), Vector(-9.53, -3.28, 0)),
    Part.LineSegment(Vector(-9.53, -3.28, 0), Vector(-8.89, -2.54, 0)),
    Part.LineSegment(Vector(-7.62, -9.31, 0), Vector(-2.86, -8.52, 0)),
    Part.LineSegment(Vector(-2.86, -8.52, 0), Vector(-2.06, -9.18, 0)),
    Part.LineSegment(Vector(-2.06, -9.18, 0), Vector(-2.52, -9.73, 0)),
    Part.LineSegment(Vector(-2.52, -9.73, 0), Vector(-8.26, -10.69, 0)),
    Part.LineSegment(Vector(-8.26, -10.69, 0), Vector(-8.6, -10.4, 0)),
    Part.LineSegment(Vector(-8.6, -10.4, 0), Vector(-7.62, -9.31, 0)),
    Part.LineSegment(Vector(-2.06, -1.24, 0), Vector(-2.86, -2.17, 0)),
    Part.LineSegment(Vector(-2.86, -2.17, 0), Vector(-7.83, -3, 0)),
    Part.LineSegment(Vector(-7.83, -3, 0), Vector(-8.67, -2.28, 0)),
    Part.LineSegment(Vector(-8.67, -2.28, 0), Vector(-8.26, -1.8, 0)),
    Part.LineSegment(Vector(-8.26, -1.8, 0), Vector(-2.54, -0.85, 0)),
    Part.LineSegment(Vector(-2.54, -0.85, 0), Vector(-2.06, -1.24, 0)),
    Part.LineSegment(Vector(-15.72, -11.46, 0), Vector(-14.92, -10.53, 0)),
    Part.LineSegment(Vector(-14.92, -10.53, 0), Vector(-9.95, -9.7, 0)),
    Part.LineSegment(Vector(-9.95, -9.7, 0), Vector(-9.1, -10.41, 0)),
    Part.LineSegment(Vector(-9.1, -10.41, 0), Vector(-9.53, -10.9, 0)),
    Part.LineSegment(Vector(-9.53, -10.9, 0), Vector(-15.24, -11.85, 0)),
    Part.LineSegment(Vector(-15.24, -11.85, 0), Vector(-15.72, -11.46, 0)),
    Part.LineSegment(Vector(-10.16, -3.39, 0), Vector(-14.92, -4.18, 0)),
    Part.LineSegment(Vector(-14.92, -4.18, 0), Vector(-15.7, -3.5, 0)),
    Part.LineSegment(Vector(-15.7, -3.5, 0), Vector(-15.24, -2.96, 0)),
    Part.LineSegment(Vector(-15.24, -2.96, 0), Vector(-9.53, -2.01, 0)),
    Part.LineSegment(Vector(-9.53, -2.01, 0), Vector(-9.18, -2.29, 0)),
    Part.LineSegment(Vector(-9.18, -2.29, 0), Vector(-10.16, -3.39, 0)),
    Part.Circle(Vector(-15.88, -1.91, 0), Vector(0, 0, 1), 0.64),
], False)
sketch5.addConstraint([
    Sketcher.Constraint("Coincident", 0, 2, 1, 1),
    Sketcher.Constraint("Coincident", 1, 2, 2, 1),
    Sketcher.Constraint("Coincident", 2, 2, 3, 1),
    Sketcher.Constraint("Coincident", 3, 2, 4, 1),
    Sketcher.Constraint("Coincident", 4, 2, 5, 1),
    Sketcher.Constraint("Coincident", 5, 2, 0, 1),
    Sketcher.Constraint("Coincident", 6, 2, 7, 1),
    Sketcher.Constraint("Coincident", 7, 2, 8, 1),
    Sketcher.Constraint("Coincident", 8, 2, 9, 1),
    Sketcher.Constraint("Coincident", 9, 2, 10, 1),
    Sketcher.Constraint("Coincident", 10, 2, 11, 1),
    Sketcher.Constraint("Coincident", 11, 2, 6, 1),
    Sketcher.Constraint("Coincident", 12, 2, 13, 1),
    Sketcher.Constraint("Coincident", 13, 2, 14, 1),
    Sketcher.Constraint("Coincident", 14, 2, 15, 1),
    Sketcher.Constraint("Coincident", 15, 2, 16, 1),
    Sketcher.Constraint("Coincident", 16, 2, 17, 1),
    Sketcher.Constraint("Coincident", 17, 2, 12, 1),
    Sketcher.Constraint("Coincident", 18, 2, 19, 1),
    Sketcher.Constraint("Coincident", 19, 2, 20, 1),
    Sketcher.Constraint("Coincident", 20, 2, 21, 1),
    Sketcher.Constraint("Coincident", 21, 2, 22, 1),
    Sketcher.Constraint("Coincident", 22, 2, 23, 1),
    Sketcher.Constraint("Coincident", 23, 2, 18, 1),
    Sketcher.Constraint("Coincident", 24, 2, 25, 1),
    Sketcher.Constraint("Coincident", 25, 2, 26, 1),
    Sketcher.Constraint("Coincident", 26, 2, 27, 1),
    Sketcher.Constraint("Coincident", 27, 2, 28, 1),
    Sketcher.Constraint("Coincident", 28, 2, 29, 1),
    Sketcher.Constraint("Coincident", 29, 2, 24, 1),
    Sketcher.Constraint("Coincident", 30, 2, 31, 1),
    Sketcher.Constraint("Coincident", 31, 2, 32, 1),
    Sketcher.Constraint("Coincident", 32, 2, 33, 1),
    Sketcher.Constraint("Coincident", 33, 2, 34, 1),
    Sketcher.Constraint("Coincident", 34, 2, 35, 1),
    Sketcher.Constraint("Coincident", 35, 2, 30, 1),
    Sketcher.Constraint("Coincident", 36, 2, 37, 1),
    Sketcher.Constraint("Coincident", 37, 2, 38, 1),
    Sketcher.Constraint("Coincident", 38, 2, 39, 1),
    Sketcher.Constraint("Coincident", 39, 2, 40, 1),
    Sketcher.Constraint("Coincident", 40, 2, 41, 1),
    Sketcher.Constraint("Coincident", 41, 2, 36, 1),
    Sketcher.Constraint("Vertical", 0),
    Sketcher.Constraint("Vertical", 3),
    Sketcher.Constraint("Vertical", 6),
    Sketcher.Constraint("Vertical", 9),
    Sketcher.Constraint("Vertical", 13),
    Sketcher.Constraint("Vertical", 16),
    Sketcher.Constraint("Parallel", 1, 4),
    Sketcher.Constraint("Parallel", 2, 5),
    Sketcher.Constraint("Parallel", 4, 7),
    Sketcher.Constraint("Parallel", 5, 8),
    Sketcher.Constraint("Parallel", 7, 10),
    Sketcher.Constraint("Parallel", 8, 11),
    Sketcher.Constraint("Parallel", 11, 12),
    Sketcher.Constraint("Parallel", 10, 14),
    Sketcher.Constraint("Parallel", 12, 15),
    Sketcher.Constraint("Parallel", 14, 17),
    Sketcher.Constraint("Parallel", 15, 19),
    Sketcher.Constraint("Perpendicular", 19, 20),
    Sketcher.Constraint("Parallel", 18, 21),
    Sketcher.Constraint("Perpendicular", 20, 22),
    Sketcher.Constraint("Parallel", 17, 24),
    Sketcher.Constraint("Parallel", 21, 25),
    Sketcher.Constraint("Perpendicular", 24, 26),
    Sketcher.Constraint("Perpendicular", 26, 27),
    Sketcher.Constraint("Parallel", 25, 28),
    Sketcher.Constraint("Parallel", 22, 29),
    Sketcher.Constraint("Parallel", 27, 30),
    Sketcher.Constraint("Parallel", 28, 31),
    Sketcher.Constraint("Parallel", 29, 32),
    Sketcher.Constraint("Parallel", 31, 34),
    Sketcher.Constraint("Parallel", 32, 35),
    Sketcher.Constraint("Parallel", 34, 36),
    Sketcher.Constraint("Perpendicular", 30, 37),
    Sketcher.Constraint("Perpendicular", 37, 38),
    Sketcher.Constraint("Parallel", 36, 39),
    Sketcher.Constraint("Parallel", 23, 41),
    Sketcher.Constraint("Horizontal", 42, 3, 5, 2),
    Sketcher.Constraint("Vertical", 1, 2, 4, 2),
    Sketcher.Constraint("Vertical", 42, 3, 7, 2),
    Sketcher.Constraint("Vertical", 7, 2, 10, 2),
    Sketcher.Constraint("Vertical", 14, 2, 17, 2),
    Sketcher.Constraint("Vertical", 13, 2, 21, 2),
    Sketcher.Constraint("Vertical", 18, 2, 24, 2),
    Sketcher.Constraint("Vertical", 21, 2, 27, 2),
    Sketcher.Constraint("Vertical", 3, 2, 28, 2),
    Sketcher.Constraint("Vertical", 16, 2, 33, 2),
    Sketcher.Constraint("Vertical", 9, 2, 34, 2),
    Sketcher.Constraint("Vertical", 34, 2, 38, 2),
    Sketcher.Constraint("Vertical", 33, 2, 39, 2),
    Sketcher.Constraint("Equal", 0, 3),
    Sketcher.Constraint("Equal", 3, 6),
    Sketcher.Constraint("Equal", 6, 9),
    Sketcher.Constraint("Equal", 9, 13),
    Sketcher.Constraint("Equal", 13, 16),
    Sketcher.Constraint("Equal", 4, 7),
    Sketcher.Constraint("Equal", 11, 12),
    Sketcher.Constraint("Equal", 24, 30),
    Sketcher.Constraint("Equal", 28, 34),
    Sketcher.Constraint("Equal", 29, 35),
    Sketcher.Constraint("Diameter", 42, Q("0.05 in")),
    Sketcher.Constraint("DistanceY", 0, 2, 0, 1, Q("0.25 in")),
    Sketcher.Constraint("DistanceX", 2, 2, -1, 1, Q("0.1 in")),
    Sketcher.Constraint("DistanceX", 8, 2, -1, 1, Q("0.6 in")),
    Sketcher.Constraint("DistanceY", 14, 2, -1, 1, Q("0.4 in")),
    Sketcher.Constraint("DistanceY", 17, 2, -1, 1, Q("0.1 in")),
    Sketcher.Constraint("DistanceX", 23, 2, -1, 1, Q("0.3 in")),
    Sketcher.Constraint("DistanceX", 41, 2, -1, 1, Q("0.4 in")),
    Sketcher.Constraint("Angle", 26, Q("139.3993 deg")),
    Sketcher.Constraint("DistanceY", 6, 2, 42, 3, Q("0.1 in")),
    Sketcher.Constraint("DistanceX", 7, 2, 12, 2, Q("0.3 in")),
    Sketcher.Constraint("DistanceY", 21, 2, 13, 2, Q("0.05 in")),
    Sketcher.Constraint("DistanceY", 12, 2, 27, 2, Q("0.05 in")),
    Sketcher.Constraint("DistanceY", 3, 2, 28, 2, Q("0.05 in")),
    Sketcher.Constraint("DistanceY", 33, 2, 15, 2, Q("0.05 in")),
    Sketcher.Constraint("DistanceY", 34, 2, 9, 2, Q("0.05 in")),
    Sketcher.Constraint("DistanceY", 8, 2, 38, 2, Q("0.05 in")),
    Sketcher.Constraint("DistanceX", 18, 2, 0, 2, Q("0.0625 in")),
    Sketcher.Constraint("DistanceY", 24, 2, 4, 2, Q("0.031252 in")),
    Sketcher.Constraint("DistanceY", 21, 2, 32, 2, Q("0.011 in")),
    Sketcher.Constraint("DistanceY", 41, 2, 40, 2, Q("0.043 in")),
    Sketcher.Constraint("Distance", 20, Q("0.0282 in")),
    Sketcher.Constraint("Distance", 36, Q("0.1898 in")),
    Sketcher.Constraint("DistanceX", 20, 2, -1, 1, Q("0.0992 in")),
    Sketcher.Constraint("DistanceY", 26, 2, -1, 1, Q("0.0897 in")),
    Sketcher.Constraint("DistanceX", 32, 2, -1, 1, Q("0.3582 in")),
    Sketcher.Constraint("DistanceX", 40, 2, -1, 1, Q("0.3613 in")),
    Sketcher.Constraint("DistanceY", 36, 2, 7, 2, Q("0.0187 in")),
])
sketch5.setExpression("Constraints[101]", "Params.sketch5_diameter")
sketch5.setExpression("Constraints[102]", "Params.sketch5_height")
pocket2 = body.newObject("PartDesign::Pocket", "Pocket001")
pocket2.Profile = sketch5
pocket2.setExpression("Length", "Params.pocket2_length")
pocket2.Reversed = True

doc.recompute()
